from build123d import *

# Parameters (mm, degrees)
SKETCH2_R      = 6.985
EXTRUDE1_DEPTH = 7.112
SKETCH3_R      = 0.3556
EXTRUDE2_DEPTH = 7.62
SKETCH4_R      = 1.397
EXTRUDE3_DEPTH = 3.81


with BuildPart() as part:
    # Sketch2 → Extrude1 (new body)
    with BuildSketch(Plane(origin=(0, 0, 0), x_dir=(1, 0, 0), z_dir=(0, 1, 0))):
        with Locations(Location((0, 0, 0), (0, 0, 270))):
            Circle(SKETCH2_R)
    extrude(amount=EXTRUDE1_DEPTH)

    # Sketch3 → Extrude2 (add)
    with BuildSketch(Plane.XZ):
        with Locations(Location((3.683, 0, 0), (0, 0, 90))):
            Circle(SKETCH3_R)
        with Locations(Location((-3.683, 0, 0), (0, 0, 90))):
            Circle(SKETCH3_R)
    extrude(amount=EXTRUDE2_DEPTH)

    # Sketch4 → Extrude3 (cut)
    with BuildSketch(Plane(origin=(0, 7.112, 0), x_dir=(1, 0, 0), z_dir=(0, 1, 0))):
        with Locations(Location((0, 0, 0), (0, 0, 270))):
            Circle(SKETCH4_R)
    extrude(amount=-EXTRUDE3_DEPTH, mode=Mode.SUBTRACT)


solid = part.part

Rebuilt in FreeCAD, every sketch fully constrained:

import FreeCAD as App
import Part
import Sketcher
from FreeCAD import Vector
Q = App.Units.Quantity

doc = App.newDocument("Part")
body = doc.addObject("PartDesign::Body", "Body")

# Sketch on XZ plane
sketch1 = body.newObject("Sketcher::SketchObject", "Sketch")
sketch1.AttachmentSupport = (doc.getObject("XZ_Plane"), [""])
sketch1.MapMode = "FlatFace"
sketch1.addGeometry(Part.Circle(Vector(0, 0, 0), Vector(0, 0, 1), 7), False)
sketch1.addConstraint(Sketcher.Constraint("Coincident", 0, 3, -1, 1))
sketch1.addConstraint(Sketcher.Constraint("Diameter", 0, Q("0.55 in")))
pad1 = body.newObject("PartDesign::Pad", "Pad")
pad1.Profile = sketch1
pad1.Length = Q("0.28 in")
pad1.Reversed = True

# Sketch on XZ plane
sketch2 = body.newObject("Sketcher::SketchObject", "Sketch001")
sketch2.AttachmentSupport = (doc.getObject("XZ_Plane"), [""])
sketch2.MapMode = "FlatFace"
sketch2.addGeometry(Part.Circle(Vector(3.68, 0, 0), Vector(0, 0, 1), 0.36), False)
sketch2.addGeometry(Part.Circle(Vector(-3.68, 0, 0), Vector(0, 0, 1), 0.36), False)
sketch2.addConstraint(Sketcher.Constraint("Equal", 0, 1))
sketch2.addConstraint(Sketcher.Constraint("Symmetric", 0, 3, 1, 3, -1, 1))
sketch2.addConstraint(Sketcher.Constraint("PointOnObject", 0, 3, -1))
sketch2.addConstraint(Sketcher.Constraint("Diameter", 0, Q("0.028 in")))
sketch2.addConstraint(Sketcher.Constraint("DistanceX", 1, 3, 0, 3, Q("0.29 in")))
pad2 = body.newObject("PartDesign::Pad", "Pad001")
pad2.Profile = sketch2
pad2.Length = Q("0.3 in")

# Sketch on XZ plane
sketch3 = body.newObject("Sketcher::SketchObject", "Sketch002")
sketch3.AttachmentSupport = (doc.getObject("XZ_Plane"), [""])
sketch3.MapMode = "FlatFace"
sketch3.AttachmentOffset = App.Placement(Vector(0, 0, -0.28 * 25.4), App.Rotation())
sketch3.addGeometry(Part.Circle(Vector(0, 0, 0), Vector(0, 0, 1), 1.4), False)
sketch3.addConstraint(Sketcher.Constraint("Coincident", 0, 3, -1, 1))
sketch3.addConstraint(Sketcher.Constraint("Diameter", 0, Q("0.11 in")))
pocket1 = body.newObject("PartDesign::Pocket", "Pocket")
pocket1.Profile = sketch3
pocket1.Length = Q("0.15 in")
pocket1.Reversed = True

doc.recompute()
